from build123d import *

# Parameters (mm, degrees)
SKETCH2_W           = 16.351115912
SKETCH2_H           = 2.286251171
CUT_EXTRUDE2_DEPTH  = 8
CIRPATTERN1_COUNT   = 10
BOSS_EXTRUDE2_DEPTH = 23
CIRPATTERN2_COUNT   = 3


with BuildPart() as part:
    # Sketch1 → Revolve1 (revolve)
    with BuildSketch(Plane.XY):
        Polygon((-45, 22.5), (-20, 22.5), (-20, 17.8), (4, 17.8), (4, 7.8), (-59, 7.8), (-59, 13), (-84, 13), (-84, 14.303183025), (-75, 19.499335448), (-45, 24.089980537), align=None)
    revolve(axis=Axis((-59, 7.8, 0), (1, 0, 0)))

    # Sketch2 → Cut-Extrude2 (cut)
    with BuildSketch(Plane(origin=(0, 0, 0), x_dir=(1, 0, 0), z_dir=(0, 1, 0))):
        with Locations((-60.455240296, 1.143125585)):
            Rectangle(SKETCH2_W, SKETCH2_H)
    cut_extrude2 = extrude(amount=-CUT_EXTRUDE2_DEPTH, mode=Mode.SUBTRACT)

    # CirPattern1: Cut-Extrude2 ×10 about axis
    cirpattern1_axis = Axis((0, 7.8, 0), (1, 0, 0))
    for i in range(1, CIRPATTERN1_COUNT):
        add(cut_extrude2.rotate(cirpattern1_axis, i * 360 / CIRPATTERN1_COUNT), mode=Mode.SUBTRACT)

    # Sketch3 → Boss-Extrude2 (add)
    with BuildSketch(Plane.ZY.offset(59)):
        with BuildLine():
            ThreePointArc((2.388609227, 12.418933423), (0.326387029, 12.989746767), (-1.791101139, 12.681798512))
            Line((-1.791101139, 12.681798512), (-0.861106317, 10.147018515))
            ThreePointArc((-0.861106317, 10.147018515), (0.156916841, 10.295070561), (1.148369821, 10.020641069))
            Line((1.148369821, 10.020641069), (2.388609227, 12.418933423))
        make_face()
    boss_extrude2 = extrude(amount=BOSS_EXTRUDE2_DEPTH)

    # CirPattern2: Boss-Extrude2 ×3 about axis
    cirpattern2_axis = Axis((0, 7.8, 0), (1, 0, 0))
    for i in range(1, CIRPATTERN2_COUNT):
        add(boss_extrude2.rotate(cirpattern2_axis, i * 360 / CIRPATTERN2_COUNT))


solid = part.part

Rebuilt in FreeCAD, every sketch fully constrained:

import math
import FreeCAD as App
import Part
import Sketcher
from FreeCAD import Vector
Q = App.Units.Quantity


def add_polygon(sketch, points):
    """Adds a closed chain of lines whose ends are joined by coincident constraints."""
    first, n = sketch.GeometryCount, len(points)
    for a, b in zip(points, points[1:] + points[:1]):
        sketch.addGeometry(Part.LineSegment(App.Vector(*a, 0), App.Vector(*b, 0)), False)
    for i in range(n):
        sketch.addConstraint(Sketcher.Constraint("Coincident", first + i, 2, first + (i + 1) % n, 1))

doc = App.newDocument("Part")
body = doc.addObject("PartDesign::Body", "Body")

sketch1 = body.newObject("Sketcher::SketchObject", "Sketch")
sketch1.AttachmentSupport = (doc.getObject("XY_Plane"), [""])
sketch1.MapMode = "FlatFace"
add_polygon(sketch1, [(-20, 22.5), (-45, 22.5), (-45, 24.089981), (-75, 19.499335), (-84, 14.303183), (-84, 13), (-59, 13), (-59, 7.8), (4, 7.8), (4, 17.8), (-20, 17.8)])
sketch1.addGeometry(Part.LineSegment(Vector(-84, 7.8, 0), Vector(4, 7.8, 0)), True)
sketch1.addConstraint(Sketcher.Constraint("Horizontal", 0))
sketch1.addConstraint(Sketcher.Constraint("Vertical", 1))
sketch1.addConstraint(Sketcher.Constraint("Vertical", 4))
sketch1.addConstraint(Sketcher.Constraint("Horizontal", 5))
sketch1.addConstraint(Sketcher.Constraint("Vertical", 6))
sketch1.addConstraint(Sketcher.Constraint("Horizontal", 7))
sketch1.addConstraint(Sketcher.Constraint("Vertical", 8))
sketch1.addConstraint(Sketcher.Constraint("Horizontal", 9))
sketch1.addConstraint(Sketcher.Constraint("Vertical", 10))
sketch1.addConstraint(Sketcher.Constraint("Horizontal", 11))
sketch1.addConstraint(Sketcher.Constraint("Coincident", 11, 2, 7, 2))
sketch1.addConstraint(Sketcher.Constraint("Vertical", 4, 2, 11, 1))
sketch1.addConstraint(Sketcher.Constraint("Equal", 0, 5))
sketch1.addConstraint(Sketcher.Constraint("DistanceX", 0, 2, 0, 1, 25.0))
sketch1.addConstraint(Sketcher.Constraint("DistanceX", 7, 1, 7, 2, 63.0))
sketch1.addConstraint(Sketcher.Constraint("DistanceX", 9, 2, 9, 1, 24.0))
sketch1.addConstraint(Sketcher.Constraint("DistanceY", 8, 1, 8, 2, 10.0))
sketch1.addConstraint(Sketcher.Constraint("Angle", 3, Q("-150 deg")))
sketch1.addConstraint(Sketcher.Constraint("DistanceY", 6, 2, 6, 1, 5.2))
sketch1.addConstraint(Sketcher.Constraint("DistanceY", 10, 1, 10, 2, 4.7))
sketch1.addConstraint(Sketcher.Constraint("DistanceX", 0, 2, -1, 1, 45.0))
sketch1.addConstraint(Sketcher.Constraint("DistanceX", 2, 2, -1, 1, 75.0))
sketch1.addConstraint(Sketcher.Constraint("DistanceY", -1, 1, 4, 2, 13.0))
sketch1.addConstraint(Sketcher.Constraint("Angle", 2, Q("-171.3 deg")))
sketch1.addConstraint(Sketcher.Constraint("DistanceY", 1, 1, 1, 2, 1.589981))
revolution = body.newObject("PartDesign::Revolution", "Revolution")
revolution.Profile = sketch1
revolution.ReferenceAxis = (sketch1, ["Axis0"])
revolution.Angle = 360

sketch2 = body.newObject("Sketcher::SketchObject", "Sketch001")
sketch2.AttachmentSupport = (doc.getObject("XZ_Plane"), [""])
sketch2.MapMode = "FlatFace"
add_polygon(sketch2, [(-68.630798, -2.286251), (-68.630798, 0), (-52.279682, 0), (-52.279682, -2.286251)])
sketch2.addConstraint(Sketcher.Constraint("Vertical", 0))
sketch2.addConstraint(Sketcher.Constraint("Horizontal", 1))
sketch2.addConstraint(Sketcher.Constraint("Vertical", 2))
sketch2.addConstraint(Sketcher.Constraint("Horizontal", 3))
sketch2.addConstraint(Sketcher.Constraint("PointOnObject", 0, 2, -1))
sketch2.addConstraint(Sketcher.Constraint("DistanceY", 0, 1, 0, 2, 2.286251))
sketch2.addConstraint(Sketcher.Constraint("DistanceX", 0, 2, -1, 1, 68.630798))
sketch2.addConstraint(Sketcher.Constraint("DistanceX", 1, 1, 1, 2, 16.351116))
pocket1 = body.newObject("PartDesign::Pocket", "Pocket")
pocket1.Profile = sketch2
pocket1.Length = 8
pocket1.Reversed = True
doc.recompute()

datumline = body.newObject("PartDesign::Line", "DatumLine")
datumline.Placement = App.Placement(Vector(0, 7.8, 0), App.Rotation(Vector(0, 0, 1), Vector(1, 0, 0)))
polarpattern = body.newObject("PartDesign::PolarPattern", "PolarPattern")
polarpattern.Originals = [pocket1]
polarpattern.Axis = (datumline, [""])
polarpattern.Angle = 360
polarpattern.Occurrences = 10
body.Tip = polarpattern

sketch3 = body.newObject("Sketcher::SketchObject", "Sketch002")
sketch3.AttachmentSupport = (doc.getObject("YZ_Plane"), [""])
sketch3.MapMode = "FlatFace"
sketch3.AttachmentOffset = App.Placement(Vector(0, 0, -59), App.Rotation())
sketch3.addGeometry(Part.ArcOfCircle(Part.Circle(Vector(7.8, 0, 0), Vector(0, 0, 1), 5.2), math.radians(-20.147769), math.radians(27.345038)), False)
sketch3.addGeometry(Part.LineSegment(Vector(12.681799, -1.791101, 0), Vector(10.147019, -0.861106, 0)), False)
sketch3.addGeometry(Part.ArcOfCircle(Part.Circle(Vector(7.8, 0, 0), Vector(0, 0, 1), 2.5), math.radians(-20.147769), math.radians(27.345038)), False)
sketch3.addGeometry(Part.LineSegment(Vector(10.020641, 1.14837, 0), Vector(12.418933, 2.388609, 0)), False)
sketch3.addConstraint(Sketcher.Constraint("Coincident", 0, 1, 1, 1))
sketch3.addConstraint(Sketcher.Constraint("Coincident", 1, 2, 2, 1))
sketch3.addConstraint(Sketcher.Constraint("Coincident", 2, 2, 3, 1))
sketch3.addConstraint(Sketcher.Constraint("Coincident", 3, 2, 0, 2))
sketch3.addConstraint(Sketcher.Constraint("Coincident", 2, 3, 0, 3))
sketch3.addConstraint(Sketcher.Constraint("PointOnObject", 0, 3, -1))
sketch3.addConstraint(Sketcher.Constraint("Radius", 0, 5.2))
sketch3.addConstraint(Sketcher.Constraint("Radius", 2, 2.5))
sketch3.addConstraint(Sketcher.Constraint("DistanceX", -1, 1, 0, 3, 7.8))
sketch3.addConstraint(Sketcher.Constraint("DistanceX", -1, 1, 0, 1, 12.681799))
sketch3.addConstraint(Sketcher.Constraint("DistanceX", -1, 1, 1, 2, 10.147019))
sketch3.addConstraint(Sketcher.Constraint("DistanceX", -1, 1, 2, 2, 10.020641))
sketch3.addConstraint(Sketcher.Constraint("DistanceY", -1, 1, 3, 2, 2.388609))
pad1 = body.newObject("PartDesign::Pad", "Pad")
pad1.Profile = sketch3
pad1.Length = 23
pad1.Reversed = True
doc.recompute()

datumline2 = body.newObject("PartDesign::Line", "DatumLine001")
datumline2.Placement = App.Placement(Vector(0, 7.8, 0), App.Rotation(Vector(0, 0, 1), Vector(1, 0, 0)))
polarpattern2 = body.newObject("PartDesign::PolarPattern", "PolarPattern001")
polarpattern2.Originals = [pad1]
polarpattern2.Axis = (datumline2, [""])
polarpattern2.Angle = 360
polarpattern2.Occurrences = 3
body.Tip = polarpattern2

doc.recompute()
